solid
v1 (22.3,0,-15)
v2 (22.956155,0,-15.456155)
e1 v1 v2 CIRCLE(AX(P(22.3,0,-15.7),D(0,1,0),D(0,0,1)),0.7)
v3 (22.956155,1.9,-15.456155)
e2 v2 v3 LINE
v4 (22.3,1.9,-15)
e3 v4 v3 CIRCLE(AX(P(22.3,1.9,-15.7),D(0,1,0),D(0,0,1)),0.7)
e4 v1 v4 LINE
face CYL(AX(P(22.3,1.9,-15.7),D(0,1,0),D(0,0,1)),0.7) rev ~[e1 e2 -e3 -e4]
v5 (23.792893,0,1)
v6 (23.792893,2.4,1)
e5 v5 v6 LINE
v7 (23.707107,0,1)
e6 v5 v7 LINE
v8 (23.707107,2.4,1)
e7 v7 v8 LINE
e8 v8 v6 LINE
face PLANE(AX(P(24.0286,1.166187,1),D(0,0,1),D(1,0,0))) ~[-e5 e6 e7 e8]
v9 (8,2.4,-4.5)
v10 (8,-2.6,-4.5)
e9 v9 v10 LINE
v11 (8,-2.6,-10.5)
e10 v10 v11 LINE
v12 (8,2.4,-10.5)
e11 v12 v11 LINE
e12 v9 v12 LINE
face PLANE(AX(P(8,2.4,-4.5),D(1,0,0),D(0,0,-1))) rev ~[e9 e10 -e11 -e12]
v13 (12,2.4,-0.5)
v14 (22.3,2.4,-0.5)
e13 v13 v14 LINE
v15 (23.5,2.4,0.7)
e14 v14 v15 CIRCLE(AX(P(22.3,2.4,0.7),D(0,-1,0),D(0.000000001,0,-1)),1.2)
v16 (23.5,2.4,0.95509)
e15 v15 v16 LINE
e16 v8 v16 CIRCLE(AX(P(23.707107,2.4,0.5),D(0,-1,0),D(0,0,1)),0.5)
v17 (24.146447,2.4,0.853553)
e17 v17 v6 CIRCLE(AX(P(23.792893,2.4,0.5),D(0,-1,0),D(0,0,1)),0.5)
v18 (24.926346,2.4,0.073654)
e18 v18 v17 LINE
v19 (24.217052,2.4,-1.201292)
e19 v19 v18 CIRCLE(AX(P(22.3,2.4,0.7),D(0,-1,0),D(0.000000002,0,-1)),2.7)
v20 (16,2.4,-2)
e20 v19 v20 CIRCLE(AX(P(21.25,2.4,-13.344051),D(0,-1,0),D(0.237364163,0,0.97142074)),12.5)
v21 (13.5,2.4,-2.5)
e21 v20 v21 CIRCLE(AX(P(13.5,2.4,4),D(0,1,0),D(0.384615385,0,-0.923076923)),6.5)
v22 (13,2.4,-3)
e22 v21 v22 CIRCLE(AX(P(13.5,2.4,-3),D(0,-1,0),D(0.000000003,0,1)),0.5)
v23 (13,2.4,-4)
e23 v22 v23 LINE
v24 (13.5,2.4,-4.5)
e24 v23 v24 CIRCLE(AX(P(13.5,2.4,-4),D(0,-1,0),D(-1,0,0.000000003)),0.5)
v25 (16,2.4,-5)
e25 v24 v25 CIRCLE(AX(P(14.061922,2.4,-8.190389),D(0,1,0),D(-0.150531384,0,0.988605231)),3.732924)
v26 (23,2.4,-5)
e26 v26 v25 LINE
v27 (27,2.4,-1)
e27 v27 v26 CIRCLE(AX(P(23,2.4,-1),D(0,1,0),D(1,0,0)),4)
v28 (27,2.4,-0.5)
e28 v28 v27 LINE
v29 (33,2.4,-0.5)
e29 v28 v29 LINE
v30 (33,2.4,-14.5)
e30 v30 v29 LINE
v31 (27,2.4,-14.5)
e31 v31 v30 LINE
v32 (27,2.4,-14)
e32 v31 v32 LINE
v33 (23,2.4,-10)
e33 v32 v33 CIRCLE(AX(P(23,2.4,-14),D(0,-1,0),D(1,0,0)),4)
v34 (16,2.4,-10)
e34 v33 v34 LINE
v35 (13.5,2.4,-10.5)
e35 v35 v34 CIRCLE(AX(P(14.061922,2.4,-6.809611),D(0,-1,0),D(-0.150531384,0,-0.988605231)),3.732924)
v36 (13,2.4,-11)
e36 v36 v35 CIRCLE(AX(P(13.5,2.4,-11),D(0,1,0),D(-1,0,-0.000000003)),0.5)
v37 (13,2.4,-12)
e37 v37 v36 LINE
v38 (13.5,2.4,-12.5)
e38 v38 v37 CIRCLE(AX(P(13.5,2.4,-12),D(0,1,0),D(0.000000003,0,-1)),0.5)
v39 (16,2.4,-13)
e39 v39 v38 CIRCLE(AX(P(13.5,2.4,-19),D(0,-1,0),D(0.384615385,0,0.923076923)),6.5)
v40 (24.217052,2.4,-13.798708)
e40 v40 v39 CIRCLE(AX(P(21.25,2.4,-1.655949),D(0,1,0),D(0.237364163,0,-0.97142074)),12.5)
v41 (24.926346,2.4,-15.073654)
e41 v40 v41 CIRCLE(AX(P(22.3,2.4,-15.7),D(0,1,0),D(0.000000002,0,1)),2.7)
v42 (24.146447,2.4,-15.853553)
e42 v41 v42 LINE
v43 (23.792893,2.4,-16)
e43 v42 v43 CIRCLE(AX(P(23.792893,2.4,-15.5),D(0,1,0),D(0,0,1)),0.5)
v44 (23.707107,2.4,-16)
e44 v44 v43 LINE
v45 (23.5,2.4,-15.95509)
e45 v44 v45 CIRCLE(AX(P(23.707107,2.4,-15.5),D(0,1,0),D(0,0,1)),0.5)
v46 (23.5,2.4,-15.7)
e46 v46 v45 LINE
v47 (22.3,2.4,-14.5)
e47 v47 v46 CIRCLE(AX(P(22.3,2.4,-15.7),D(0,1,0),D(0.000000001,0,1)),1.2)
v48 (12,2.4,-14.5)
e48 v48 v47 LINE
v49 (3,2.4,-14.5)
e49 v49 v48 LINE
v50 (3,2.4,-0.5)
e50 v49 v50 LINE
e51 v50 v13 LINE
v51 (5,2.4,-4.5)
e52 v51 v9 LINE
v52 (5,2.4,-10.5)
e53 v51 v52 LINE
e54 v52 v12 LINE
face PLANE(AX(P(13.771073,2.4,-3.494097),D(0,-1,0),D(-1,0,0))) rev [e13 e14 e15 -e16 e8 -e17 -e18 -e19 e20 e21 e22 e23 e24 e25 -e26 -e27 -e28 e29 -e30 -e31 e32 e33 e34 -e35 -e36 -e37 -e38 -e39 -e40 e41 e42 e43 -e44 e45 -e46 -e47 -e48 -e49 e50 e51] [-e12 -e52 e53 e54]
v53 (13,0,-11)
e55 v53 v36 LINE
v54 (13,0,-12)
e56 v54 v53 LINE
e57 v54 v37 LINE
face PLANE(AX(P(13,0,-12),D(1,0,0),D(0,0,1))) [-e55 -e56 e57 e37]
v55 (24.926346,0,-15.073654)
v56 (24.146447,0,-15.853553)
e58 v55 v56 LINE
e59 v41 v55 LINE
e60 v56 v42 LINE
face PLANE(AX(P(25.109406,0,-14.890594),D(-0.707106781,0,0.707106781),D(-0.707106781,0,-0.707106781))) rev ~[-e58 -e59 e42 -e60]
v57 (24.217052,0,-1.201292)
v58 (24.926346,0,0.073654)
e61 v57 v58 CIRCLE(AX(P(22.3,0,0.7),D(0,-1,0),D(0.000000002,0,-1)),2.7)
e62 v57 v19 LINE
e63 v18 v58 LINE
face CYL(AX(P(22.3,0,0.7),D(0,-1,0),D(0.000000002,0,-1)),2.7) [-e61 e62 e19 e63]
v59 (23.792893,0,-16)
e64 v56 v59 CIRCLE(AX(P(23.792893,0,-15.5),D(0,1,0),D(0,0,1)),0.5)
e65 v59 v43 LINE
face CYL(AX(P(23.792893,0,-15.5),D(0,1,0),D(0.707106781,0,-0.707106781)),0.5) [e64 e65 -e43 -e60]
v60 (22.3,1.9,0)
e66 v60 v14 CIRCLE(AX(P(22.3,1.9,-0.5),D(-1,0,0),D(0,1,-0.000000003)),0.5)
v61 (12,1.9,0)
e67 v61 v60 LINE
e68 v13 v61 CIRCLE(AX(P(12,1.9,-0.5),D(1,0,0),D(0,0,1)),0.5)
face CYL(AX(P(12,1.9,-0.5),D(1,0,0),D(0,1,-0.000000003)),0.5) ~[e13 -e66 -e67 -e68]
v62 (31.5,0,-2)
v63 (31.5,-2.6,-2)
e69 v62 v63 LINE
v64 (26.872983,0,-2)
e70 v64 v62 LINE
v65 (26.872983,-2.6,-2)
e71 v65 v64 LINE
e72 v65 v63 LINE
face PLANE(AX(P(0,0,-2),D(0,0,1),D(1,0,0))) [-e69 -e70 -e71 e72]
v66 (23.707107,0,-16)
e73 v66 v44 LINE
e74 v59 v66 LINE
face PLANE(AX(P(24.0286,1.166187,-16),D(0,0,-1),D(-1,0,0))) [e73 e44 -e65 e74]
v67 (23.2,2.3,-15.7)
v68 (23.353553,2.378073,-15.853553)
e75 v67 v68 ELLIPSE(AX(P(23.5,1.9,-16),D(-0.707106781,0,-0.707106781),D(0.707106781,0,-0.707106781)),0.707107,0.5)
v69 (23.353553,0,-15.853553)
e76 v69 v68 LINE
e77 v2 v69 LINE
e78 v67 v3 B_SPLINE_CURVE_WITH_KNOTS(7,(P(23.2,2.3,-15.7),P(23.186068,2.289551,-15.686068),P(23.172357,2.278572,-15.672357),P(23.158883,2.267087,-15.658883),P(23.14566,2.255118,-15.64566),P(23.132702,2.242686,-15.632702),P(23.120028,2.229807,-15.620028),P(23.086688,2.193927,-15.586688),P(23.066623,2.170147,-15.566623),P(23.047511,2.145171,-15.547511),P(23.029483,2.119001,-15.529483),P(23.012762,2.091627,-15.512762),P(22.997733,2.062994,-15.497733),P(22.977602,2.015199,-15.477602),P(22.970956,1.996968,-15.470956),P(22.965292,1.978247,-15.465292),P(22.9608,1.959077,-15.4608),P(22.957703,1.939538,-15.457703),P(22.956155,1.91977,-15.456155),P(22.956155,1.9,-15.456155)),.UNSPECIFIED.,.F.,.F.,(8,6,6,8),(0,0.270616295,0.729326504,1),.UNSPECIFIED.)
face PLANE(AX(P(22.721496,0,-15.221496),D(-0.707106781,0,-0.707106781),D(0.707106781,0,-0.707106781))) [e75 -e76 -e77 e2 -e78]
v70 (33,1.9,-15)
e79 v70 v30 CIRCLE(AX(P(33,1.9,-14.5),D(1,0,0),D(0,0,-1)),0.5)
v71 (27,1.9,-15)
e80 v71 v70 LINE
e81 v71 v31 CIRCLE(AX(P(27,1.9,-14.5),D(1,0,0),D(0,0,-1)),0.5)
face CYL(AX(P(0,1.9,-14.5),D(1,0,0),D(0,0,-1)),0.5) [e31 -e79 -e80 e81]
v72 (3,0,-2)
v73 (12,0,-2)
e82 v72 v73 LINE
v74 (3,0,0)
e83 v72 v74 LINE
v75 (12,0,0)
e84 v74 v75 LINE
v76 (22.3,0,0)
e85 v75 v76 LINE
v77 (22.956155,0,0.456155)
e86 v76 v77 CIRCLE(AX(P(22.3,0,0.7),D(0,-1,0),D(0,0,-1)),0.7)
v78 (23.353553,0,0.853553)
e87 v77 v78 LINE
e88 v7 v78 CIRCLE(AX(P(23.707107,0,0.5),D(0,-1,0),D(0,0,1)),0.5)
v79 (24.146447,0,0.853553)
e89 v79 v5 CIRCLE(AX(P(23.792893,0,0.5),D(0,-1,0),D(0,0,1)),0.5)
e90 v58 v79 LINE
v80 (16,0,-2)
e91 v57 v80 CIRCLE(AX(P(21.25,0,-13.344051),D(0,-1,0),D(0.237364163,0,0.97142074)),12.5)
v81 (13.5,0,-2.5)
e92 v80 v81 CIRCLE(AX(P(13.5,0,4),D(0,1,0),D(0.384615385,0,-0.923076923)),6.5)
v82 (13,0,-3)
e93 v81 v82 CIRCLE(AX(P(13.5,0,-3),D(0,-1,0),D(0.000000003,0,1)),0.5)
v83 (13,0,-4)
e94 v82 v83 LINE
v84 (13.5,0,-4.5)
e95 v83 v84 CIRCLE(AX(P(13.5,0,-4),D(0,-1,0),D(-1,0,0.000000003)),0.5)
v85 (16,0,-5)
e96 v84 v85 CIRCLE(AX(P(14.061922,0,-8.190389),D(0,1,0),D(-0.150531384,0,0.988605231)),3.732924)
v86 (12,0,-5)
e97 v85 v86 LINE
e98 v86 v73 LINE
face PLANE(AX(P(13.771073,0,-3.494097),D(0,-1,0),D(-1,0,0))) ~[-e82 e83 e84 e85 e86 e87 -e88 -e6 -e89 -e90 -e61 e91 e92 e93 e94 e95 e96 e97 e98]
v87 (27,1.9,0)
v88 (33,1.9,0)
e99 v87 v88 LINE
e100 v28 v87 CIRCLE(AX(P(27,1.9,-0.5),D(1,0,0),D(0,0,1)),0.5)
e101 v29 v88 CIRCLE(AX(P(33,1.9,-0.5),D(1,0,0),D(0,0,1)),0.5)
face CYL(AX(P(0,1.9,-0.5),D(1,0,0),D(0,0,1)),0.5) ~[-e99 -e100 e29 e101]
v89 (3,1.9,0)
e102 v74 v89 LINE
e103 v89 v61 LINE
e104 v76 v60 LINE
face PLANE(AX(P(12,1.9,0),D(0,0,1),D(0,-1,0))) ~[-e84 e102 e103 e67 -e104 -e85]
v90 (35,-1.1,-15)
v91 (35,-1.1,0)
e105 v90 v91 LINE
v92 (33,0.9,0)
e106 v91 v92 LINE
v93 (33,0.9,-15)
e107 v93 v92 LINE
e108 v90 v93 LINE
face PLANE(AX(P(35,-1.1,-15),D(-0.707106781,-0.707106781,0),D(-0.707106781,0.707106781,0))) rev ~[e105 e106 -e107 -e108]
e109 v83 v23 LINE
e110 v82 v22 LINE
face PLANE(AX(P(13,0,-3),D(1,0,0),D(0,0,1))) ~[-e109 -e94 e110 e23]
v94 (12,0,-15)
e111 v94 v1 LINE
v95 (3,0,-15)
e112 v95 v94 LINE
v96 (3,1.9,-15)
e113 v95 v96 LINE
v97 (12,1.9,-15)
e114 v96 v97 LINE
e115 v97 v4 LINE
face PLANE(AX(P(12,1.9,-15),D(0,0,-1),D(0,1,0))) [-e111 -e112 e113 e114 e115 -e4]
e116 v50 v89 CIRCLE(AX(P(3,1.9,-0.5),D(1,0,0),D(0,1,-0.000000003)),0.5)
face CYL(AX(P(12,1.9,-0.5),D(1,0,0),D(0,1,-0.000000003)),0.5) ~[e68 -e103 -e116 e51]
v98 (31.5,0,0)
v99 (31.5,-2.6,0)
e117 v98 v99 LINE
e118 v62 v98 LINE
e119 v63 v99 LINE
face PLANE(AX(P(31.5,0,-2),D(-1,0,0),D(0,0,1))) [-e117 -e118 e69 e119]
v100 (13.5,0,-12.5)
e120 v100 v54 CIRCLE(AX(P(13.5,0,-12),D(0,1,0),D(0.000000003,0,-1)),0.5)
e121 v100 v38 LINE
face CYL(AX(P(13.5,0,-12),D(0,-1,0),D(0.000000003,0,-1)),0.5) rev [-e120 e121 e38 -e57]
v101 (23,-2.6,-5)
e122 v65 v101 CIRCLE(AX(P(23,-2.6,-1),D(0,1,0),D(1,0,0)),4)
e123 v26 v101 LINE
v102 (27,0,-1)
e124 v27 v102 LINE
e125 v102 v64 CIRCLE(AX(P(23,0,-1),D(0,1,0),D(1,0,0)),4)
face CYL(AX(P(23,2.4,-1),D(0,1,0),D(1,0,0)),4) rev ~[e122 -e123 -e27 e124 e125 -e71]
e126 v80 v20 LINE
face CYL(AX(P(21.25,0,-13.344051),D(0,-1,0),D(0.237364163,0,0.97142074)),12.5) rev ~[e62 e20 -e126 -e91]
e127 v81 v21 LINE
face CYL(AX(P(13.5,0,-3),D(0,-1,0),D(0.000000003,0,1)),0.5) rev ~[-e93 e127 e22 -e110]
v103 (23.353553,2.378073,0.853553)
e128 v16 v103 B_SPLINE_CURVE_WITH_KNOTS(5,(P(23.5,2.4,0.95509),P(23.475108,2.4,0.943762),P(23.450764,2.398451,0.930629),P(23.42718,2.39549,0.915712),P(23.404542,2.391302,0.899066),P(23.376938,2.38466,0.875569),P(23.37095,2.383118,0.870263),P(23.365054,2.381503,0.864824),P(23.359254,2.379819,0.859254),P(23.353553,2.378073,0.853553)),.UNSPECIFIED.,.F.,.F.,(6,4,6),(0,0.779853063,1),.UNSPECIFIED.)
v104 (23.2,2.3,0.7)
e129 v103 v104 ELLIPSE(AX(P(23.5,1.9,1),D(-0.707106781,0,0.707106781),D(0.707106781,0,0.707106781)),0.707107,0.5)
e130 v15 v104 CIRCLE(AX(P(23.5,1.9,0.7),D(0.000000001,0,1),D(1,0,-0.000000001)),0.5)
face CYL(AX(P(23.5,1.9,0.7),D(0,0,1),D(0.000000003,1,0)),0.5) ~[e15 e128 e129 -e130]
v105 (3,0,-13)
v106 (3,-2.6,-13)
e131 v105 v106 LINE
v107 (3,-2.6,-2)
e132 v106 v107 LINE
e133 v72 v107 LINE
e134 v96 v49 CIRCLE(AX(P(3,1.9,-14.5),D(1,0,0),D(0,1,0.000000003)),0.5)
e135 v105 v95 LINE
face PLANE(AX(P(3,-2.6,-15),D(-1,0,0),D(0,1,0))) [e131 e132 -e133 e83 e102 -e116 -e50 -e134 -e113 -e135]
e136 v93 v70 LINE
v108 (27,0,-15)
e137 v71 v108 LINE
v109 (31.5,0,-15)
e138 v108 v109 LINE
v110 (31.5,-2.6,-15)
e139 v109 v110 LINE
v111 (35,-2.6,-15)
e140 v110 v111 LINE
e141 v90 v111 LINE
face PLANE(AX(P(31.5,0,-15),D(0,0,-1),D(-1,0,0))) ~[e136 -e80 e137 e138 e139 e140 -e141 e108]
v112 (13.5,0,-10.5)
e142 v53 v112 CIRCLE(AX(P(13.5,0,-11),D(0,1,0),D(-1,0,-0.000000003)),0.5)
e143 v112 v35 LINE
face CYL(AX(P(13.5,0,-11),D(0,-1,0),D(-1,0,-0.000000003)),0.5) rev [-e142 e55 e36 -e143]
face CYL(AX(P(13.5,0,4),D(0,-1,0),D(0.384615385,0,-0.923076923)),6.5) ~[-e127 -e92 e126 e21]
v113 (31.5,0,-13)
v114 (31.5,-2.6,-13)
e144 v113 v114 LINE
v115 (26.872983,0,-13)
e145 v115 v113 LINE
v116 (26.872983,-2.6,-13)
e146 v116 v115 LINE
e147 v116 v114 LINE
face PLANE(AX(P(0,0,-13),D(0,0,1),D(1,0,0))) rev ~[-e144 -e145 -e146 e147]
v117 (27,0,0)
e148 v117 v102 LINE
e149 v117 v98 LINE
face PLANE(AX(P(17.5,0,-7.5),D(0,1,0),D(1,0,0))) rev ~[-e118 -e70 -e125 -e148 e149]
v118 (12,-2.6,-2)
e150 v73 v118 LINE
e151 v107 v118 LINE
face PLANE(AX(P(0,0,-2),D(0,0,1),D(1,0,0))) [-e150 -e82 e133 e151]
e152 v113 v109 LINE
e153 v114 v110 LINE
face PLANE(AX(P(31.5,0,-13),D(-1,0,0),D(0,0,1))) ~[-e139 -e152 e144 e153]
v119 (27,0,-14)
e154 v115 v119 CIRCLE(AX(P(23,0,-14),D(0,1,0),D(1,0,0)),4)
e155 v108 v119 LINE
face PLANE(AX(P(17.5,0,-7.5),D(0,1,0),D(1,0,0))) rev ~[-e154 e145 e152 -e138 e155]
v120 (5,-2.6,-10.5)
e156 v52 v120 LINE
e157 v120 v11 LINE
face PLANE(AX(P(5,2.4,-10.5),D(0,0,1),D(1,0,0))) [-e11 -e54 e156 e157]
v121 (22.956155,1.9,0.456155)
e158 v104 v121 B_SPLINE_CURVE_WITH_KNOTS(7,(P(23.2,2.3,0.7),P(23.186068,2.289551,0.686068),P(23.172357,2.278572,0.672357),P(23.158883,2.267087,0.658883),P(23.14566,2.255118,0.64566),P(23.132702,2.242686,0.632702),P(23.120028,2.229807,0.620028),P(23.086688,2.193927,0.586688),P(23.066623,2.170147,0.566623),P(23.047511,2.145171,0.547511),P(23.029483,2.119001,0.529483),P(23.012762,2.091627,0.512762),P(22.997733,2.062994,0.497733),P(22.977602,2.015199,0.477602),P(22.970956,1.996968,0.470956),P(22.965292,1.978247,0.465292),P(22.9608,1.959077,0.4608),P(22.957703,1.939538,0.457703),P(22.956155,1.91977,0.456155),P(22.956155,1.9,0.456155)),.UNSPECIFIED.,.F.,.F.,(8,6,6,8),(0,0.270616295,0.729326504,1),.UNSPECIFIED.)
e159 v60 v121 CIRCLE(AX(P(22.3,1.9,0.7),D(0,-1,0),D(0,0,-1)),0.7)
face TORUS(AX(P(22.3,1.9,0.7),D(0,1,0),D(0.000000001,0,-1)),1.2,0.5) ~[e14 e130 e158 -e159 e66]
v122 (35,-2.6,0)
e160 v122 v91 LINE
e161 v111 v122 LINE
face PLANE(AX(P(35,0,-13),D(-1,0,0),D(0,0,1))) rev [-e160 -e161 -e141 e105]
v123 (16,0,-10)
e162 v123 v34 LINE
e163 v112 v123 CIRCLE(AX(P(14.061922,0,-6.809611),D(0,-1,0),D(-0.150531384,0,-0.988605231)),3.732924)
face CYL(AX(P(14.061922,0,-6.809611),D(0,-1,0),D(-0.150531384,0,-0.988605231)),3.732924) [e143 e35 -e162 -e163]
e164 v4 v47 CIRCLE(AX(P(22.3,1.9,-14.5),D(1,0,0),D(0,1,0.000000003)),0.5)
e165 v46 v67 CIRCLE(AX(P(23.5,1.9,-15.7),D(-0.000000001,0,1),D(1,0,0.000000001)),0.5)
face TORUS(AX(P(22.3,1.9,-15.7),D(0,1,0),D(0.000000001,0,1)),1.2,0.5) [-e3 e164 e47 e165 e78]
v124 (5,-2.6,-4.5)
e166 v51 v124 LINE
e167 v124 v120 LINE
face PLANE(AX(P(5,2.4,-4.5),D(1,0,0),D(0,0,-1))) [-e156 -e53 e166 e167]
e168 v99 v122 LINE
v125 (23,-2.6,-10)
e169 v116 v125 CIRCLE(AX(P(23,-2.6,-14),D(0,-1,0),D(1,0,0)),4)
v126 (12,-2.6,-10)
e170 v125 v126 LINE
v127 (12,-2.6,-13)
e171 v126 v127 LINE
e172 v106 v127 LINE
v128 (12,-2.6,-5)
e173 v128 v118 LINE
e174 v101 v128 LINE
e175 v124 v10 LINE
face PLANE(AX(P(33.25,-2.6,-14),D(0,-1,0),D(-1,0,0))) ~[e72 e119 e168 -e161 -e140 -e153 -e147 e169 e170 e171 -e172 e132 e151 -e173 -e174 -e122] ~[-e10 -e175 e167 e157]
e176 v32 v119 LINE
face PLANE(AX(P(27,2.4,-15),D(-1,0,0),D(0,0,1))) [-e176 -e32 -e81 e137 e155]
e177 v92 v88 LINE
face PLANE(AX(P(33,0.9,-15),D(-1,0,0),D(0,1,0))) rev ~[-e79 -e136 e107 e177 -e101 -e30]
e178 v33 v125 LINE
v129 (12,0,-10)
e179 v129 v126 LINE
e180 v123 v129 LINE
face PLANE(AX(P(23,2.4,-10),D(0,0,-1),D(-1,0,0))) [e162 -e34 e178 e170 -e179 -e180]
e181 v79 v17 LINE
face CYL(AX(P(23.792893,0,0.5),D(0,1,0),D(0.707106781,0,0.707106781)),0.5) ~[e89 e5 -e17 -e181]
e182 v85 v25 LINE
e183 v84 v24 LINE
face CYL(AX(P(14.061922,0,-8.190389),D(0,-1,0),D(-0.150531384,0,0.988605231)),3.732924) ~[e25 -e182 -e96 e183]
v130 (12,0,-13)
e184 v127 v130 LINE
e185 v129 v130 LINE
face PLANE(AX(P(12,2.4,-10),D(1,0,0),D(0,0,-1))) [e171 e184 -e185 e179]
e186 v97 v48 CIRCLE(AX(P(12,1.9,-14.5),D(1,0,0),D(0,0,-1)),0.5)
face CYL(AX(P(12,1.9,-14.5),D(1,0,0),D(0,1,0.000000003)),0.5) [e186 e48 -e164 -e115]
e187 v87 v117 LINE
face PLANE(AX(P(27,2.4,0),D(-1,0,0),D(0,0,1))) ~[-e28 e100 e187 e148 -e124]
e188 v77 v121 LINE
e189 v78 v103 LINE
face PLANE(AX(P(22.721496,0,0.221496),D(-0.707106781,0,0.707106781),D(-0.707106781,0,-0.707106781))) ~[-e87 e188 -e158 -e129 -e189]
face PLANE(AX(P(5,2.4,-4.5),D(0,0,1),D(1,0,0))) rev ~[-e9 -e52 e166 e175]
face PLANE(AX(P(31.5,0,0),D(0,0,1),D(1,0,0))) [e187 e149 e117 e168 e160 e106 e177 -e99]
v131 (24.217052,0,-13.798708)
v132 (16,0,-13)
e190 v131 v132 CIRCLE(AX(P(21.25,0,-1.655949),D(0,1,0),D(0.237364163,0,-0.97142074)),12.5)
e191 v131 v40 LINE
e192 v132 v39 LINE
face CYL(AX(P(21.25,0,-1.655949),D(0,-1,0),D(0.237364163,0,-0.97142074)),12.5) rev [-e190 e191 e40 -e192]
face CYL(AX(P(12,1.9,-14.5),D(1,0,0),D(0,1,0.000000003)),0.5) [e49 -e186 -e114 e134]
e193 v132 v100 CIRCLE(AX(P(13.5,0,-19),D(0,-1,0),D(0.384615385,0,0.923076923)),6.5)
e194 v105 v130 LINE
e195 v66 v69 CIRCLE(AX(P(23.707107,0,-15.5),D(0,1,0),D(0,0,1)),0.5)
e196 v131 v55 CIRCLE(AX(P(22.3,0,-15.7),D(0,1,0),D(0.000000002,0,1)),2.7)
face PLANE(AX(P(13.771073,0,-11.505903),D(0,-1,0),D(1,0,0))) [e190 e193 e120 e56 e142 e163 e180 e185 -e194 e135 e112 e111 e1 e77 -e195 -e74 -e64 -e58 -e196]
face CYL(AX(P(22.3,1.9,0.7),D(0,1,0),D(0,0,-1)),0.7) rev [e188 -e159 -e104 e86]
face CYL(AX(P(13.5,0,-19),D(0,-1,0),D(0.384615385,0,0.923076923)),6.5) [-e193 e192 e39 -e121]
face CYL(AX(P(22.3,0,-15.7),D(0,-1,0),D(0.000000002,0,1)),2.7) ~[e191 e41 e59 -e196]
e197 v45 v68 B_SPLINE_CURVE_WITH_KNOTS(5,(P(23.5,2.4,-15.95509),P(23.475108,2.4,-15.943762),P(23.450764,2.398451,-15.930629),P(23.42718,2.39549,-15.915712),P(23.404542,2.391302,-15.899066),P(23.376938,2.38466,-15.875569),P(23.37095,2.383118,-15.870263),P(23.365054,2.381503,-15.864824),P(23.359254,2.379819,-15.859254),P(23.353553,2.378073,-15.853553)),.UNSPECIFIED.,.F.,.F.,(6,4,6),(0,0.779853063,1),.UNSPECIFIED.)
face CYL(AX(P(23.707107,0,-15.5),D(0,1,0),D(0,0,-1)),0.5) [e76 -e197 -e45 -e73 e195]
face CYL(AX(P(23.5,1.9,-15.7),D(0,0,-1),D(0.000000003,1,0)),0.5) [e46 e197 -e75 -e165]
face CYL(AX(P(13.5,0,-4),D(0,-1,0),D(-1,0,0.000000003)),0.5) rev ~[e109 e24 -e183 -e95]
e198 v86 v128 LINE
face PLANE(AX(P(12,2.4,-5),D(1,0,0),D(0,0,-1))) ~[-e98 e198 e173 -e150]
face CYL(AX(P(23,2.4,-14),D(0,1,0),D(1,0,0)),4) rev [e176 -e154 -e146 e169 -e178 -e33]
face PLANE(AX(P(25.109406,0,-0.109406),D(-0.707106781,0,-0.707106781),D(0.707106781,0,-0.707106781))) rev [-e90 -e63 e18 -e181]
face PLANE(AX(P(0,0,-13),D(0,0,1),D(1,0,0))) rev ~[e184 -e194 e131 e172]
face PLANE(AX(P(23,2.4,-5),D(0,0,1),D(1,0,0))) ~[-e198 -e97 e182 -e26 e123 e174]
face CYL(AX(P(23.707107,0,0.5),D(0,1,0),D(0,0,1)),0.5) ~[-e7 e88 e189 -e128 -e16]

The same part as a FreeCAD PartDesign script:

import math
import FreeCAD as App
import Part
import Sketcher
from FreeCAD import Vector
Q = App.Units.Quantity


def edges_at(feature, points):
    """Names of the edges that pass closest to the given points."""
    edges = feature.Shape.Edges
    near = lambda p: min(range(len(edges)), key=lambda i: edges[i].distToShape(Part.Vertex(*p))[0])
    return sorted({f"Edge{near(p) + 1}" for p in points})

doc = App.newDocument("Part")
params = doc.addObject("Spreadsheet::Sheet", "Params")
for row, (alias, value) in enumerate([
    ("sketch1_width", "35 mm"),
    ("sketch1_height", "15 mm"),
    ("pad1_length", "2.4 mm"),
    ("fillet_radius", "0.5 mm"),
    ("sketch2_width", "35 mm"),
    ("sketch2_height", "11 mm"),
    ("pad2_length", "2.6 mm"),
    ("sketch3_height", "2 mm"),
    ("sketch3_width", "3.5 mm"),
    ("pad3_length", "2.6 mm"),
    ("sketch4_width", "2 mm"),
    ("sketch4_height", "1.5 mm"),
    ("pocket1_length", "15 mm"),
    ("sketch5_radius", "4 mm"),
    ("sketch5_width", "15 mm"),
    ("sketch5_height", "5 mm"),
    ("pocket2_length", "5 mm"),
    ("sketch6_radius", "0.5 mm"),
    ("sketch6_width", "2 mm"),
    ("sketch6_height", "2.4 mm"),
    ("sketch7_radius", "1.2 mm"),
    ("sketch7_width", "10.3 mm"),
    ("sketch7_height", "0.3 mm"),
    ("pocket3_length", "2.4 mm"),
    ("sketch9_radius", "6.5 mm"),
    ("sketch9_radius2", "0.5 mm"),
    ("sketch9_width", "4 mm"),
    ("sketch9_height", "3 mm"),
    ("sketch9_height2", "1 mm"),
    ("pad4_length", "2.4 mm"),
    ("sketch10_radius", "12.5 mm"),
    ("sketch10_radius2", "2.7 mm"),
    ("sketch10_width", "6.3 mm"),
    ("pocket4_length", "2.4 mm"),
    ("fillet2_radius", "0.5 mm"),
    ("fillet3_radius", "0.5 mm"),
    ("sketch11_width", "3 mm"),
    ("sketch11_height", "5 mm"),
    ("pocket5_length", "15 mm"),
    ("sketch12_width", "3 mm"),
    ("sketch12_height", "6 mm"),
    ("pocket6_length", "5 mm"),
], start=1):
    params.set(f"A{row}", alias)
    params.set(f"B{row}", "=" + value)
    params.setAlias(f"B{row}", alias)

body = doc.addObject("PartDesign::Body", "Body")

# Sketch on XZ plane
sketch1 = body.newObject("Sketcher::SketchObject", "Sketch")
sketch1.AttachmentSupport = (doc.getObject("XZ_Plane"), [""])
sketch1.MapMode = "FlatFace"
sketch1.addGeometry(Part.LineSegment(Vector(0, -15, 0), Vector(0, 0, 0)), False)
sketch1.addGeometry(Part.LineSegment(Vector(0, 0, 0), Vector(35, 0, 0)), False)
sketch1.addGeometry(Part.LineSegment(Vector(35, 0, 0), Vector(35, -15, 0)), False)
sketch1.addGeometry(Part.LineSegment(Vector(35, -15, 0), Vector(0, -15, 0)), False)
sketch1.addConstraint(Sketcher.Constraint("Coincident", 0, 2, 1, 1))
sketch1.addConstraint(Sketcher.Constraint("Coincident", 1, 2, 2, 1))
sketch1.addConstraint(Sketcher.Constraint("Coincident", 2, 2, 3, 1))
sketch1.addConstraint(Sketcher.Constraint("Coincident", 3, 2, 0, 1))
sketch1.addConstraint(Sketcher.Constraint("Vertical", 0))
sketch1.addConstraint(Sketcher.Constraint("Horizontal", 1))
sketch1.addConstraint(Sketcher.Constraint("Vertical", 2))
sketch1.addConstraint(Sketcher.Constraint("Horizontal", 3))
sketch1.addConstraint(Sketcher.Constraint("Coincident", 0, 2, -1, 1))
sketch1.addConstraint(Sketcher.Constraint("DistanceX", 1, 1, 1, 2, Q("35 mm")))
sketch1.addConstraint(Sketcher.Constraint("DistanceY", 0, 1, 0, 2, Q("15 mm")))
sketch1.setExpression("Constraints[9]", "Params.sketch1_width")
sketch1.setExpression("Constraints[10]", "Params.sketch1_height")
pad1 = body.newObject("PartDesign::Pad", "Pad")
pad1.Profile = sketch1
pad1.setExpression("Length", "Params.pad1_length")
pad1.Reversed = True
doc.recompute()

fillet = body.newObject("PartDesign::Fillet", "Fillet")
fillet.Base = (pad1, edges_at(pad1, [(17.5, 2.4, -15), (17.5, 2.4, 0)]))
fillet.setExpression("Radius", "Params.fillet_radius")

# Sketch on XZ plane
sketch2 = body.newObject("Sketcher::SketchObject", "Sketch001")
sketch2.AttachmentSupport = (doc.getObject("XZ_Plane"), [""])
sketch2.MapMode = "FlatFace"
sketch2.addGeometry(Part.LineSegment(Vector(0, -2, 0), Vector(0, -13, 0)), False)
sketch2.addGeometry(Part.LineSegment(Vector(0, -13, 0), Vector(35, -13, 0)), False)
sketch2.addGeometry(Part.LineSegment(Vector(35, -13, 0), Vector(35, -2, 0)), False)
sketch2.addGeometry(Part.LineSegment(Vector(35, -2, 0), Vector(0, -2, 0)), False)
sketch2.addConstraint(Sketcher.Constraint("Coincident", 0, 2, 1, 1))
sketch2.addConstraint(Sketcher.Constraint("Coincident", 1, 2, 2, 1))
sketch2.addConstraint(Sketcher.Constraint("Coincident", 2, 2, 3, 1))
sketch2.addConstraint(Sketcher.Constraint("Coincident", 3, 2, 0, 1))
sketch2.addConstraint(Sketcher.Constraint("Vertical", 0))
sketch2.addConstraint(Sketcher.Constraint("Horizontal", 1))
sketch2.addConstraint(Sketcher.Constraint("Vertical", 2))
sketch2.addConstraint(Sketcher.Constraint("Horizontal", 3))
sketch2.addConstraint(Sketcher.Constraint("PointOnObject", 0, 2, -2))
sketch2.addConstraint(Sketcher.Constraint("DistanceX", 1, 1, 1, 2, Q("35 mm")))
sketch2.addConstraint(Sketcher.Constraint("DistanceY", 0, 2, 0, 1, Q("11 mm")))
sketch2.addConstraint(Sketcher.Constraint("DistanceY", 0, 2, -1, 1, Q("13 mm")))
sketch2.setExpression("Constraints[9]", "Params.sketch2_width")
sketch2.setExpression("Constraints[10]", "Params.sketch2_height")
pad2 = body.newObject("PartDesign::Pad", "Pad001")
pad2.Profile = sketch2
pad2.setExpression("Length", "Params.pad2_length")

# Sketch on XZ plane
sketch3 = body.newObject("Sketcher::SketchObject", "Sketch002")
sketch3.AttachmentSupport = (doc.getObject("XZ_Plane"), [""])
sketch3.MapMode = "FlatFace"
sketch3.addGeometry(Part.LineSegment(Vector(31.5, 0, 0), Vector(31.5, -2, 0)), False)
sketch3.addGeometry(Part.LineSegment(Vector(31.5, -2, 0), Vector(35, -2, 0)), False)
sketch3.addGeometry(Part.LineSegment(Vector(35, -2, 0), Vector(35, 0, 0)), False)
sketch3.addGeometry(Part.LineSegment(Vector(35, 0, 0), Vector(31.5, 0, 0)), False)
sketch3.addConstraint(Sketcher.Constraint("Coincident", 0, 2, 1, 1))
sketch3.addConstraint(Sketcher.Constraint("Coincident", 1, 2, 2, 1))
sketch3.addConstraint(Sketcher.Constraint("Coincident", 2, 2, 3, 1))
sketch3.addConstraint(Sketcher.Constraint("Coincident", 3, 2, 0, 1))
sketch3.addConstraint(Sketcher.Constraint("Vertical", 0))
sketch3.addConstraint(Sketcher.Constraint("Horizontal", 1))
sketch3.addConstraint(Sketcher.Constraint("Vertical", 2))
sketch3.addConstraint(Sketcher.Constraint("Horizontal", 3))
sketch3.addConstraint(Sketcher.Constraint("PointOnObject", 2, 2, -1))
sketch3.addConstraint(Sketcher.Constraint("DistanceY", 0, 2, 0, 1, Q("2 mm")))
sketch3.addConstraint(Sketcher.Constraint("DistanceX", 1, 1, 1, 2, Q("3.5 mm")))
sketch3.addConstraint(Sketcher.Constraint("DistanceX", -1, 1, 1, 2, Q("35 mm")))
sketch3.setExpression("Constraints[9]", "Params.sketch3_height")
sketch3.setExpression("Constraints[10]", "Params.sketch3_width")
pad3 = body.newObject("PartDesign::Pad", "Pad002")
pad3.Profile = sketch3
pad3.setExpression("Length", "Params.pad3_length")
doc.recompute()

datumplane = body.newObject("PartDesign::Plane", "DatumPlane")
datumplane.AttachmentSupport = (doc.getObject("XY_Plane"), [""])
datumplane.MapMode = "FlatFace"
datumplane.AttachmentOffset = App.Placement(Vector(0, 0, -7.5), App.Rotation())
mirrored = body.newObject("PartDesign::Mirrored", "Mirrored")
mirrored.Originals = [pad3]
mirrored.MirrorPlane = (datumplane, [""])
body.Tip = mirrored

# Sketch on XY plane
sketch4 = body.newObject("Sketcher::SketchObject", "Sketch003")
sketch4.AttachmentSupport = (doc.getObject("XY_Plane"), [""])
sketch4.MapMode = "FlatFace"
sketch4.AttachmentOffset = App.Placement(Vector(0, 0, -15), App.Rotation())
sketch4.addGeometry(Part.LineSegment(Vector(35, -1.1, 0), Vector(33, 0.9, 0)), False)
sketch4.addGeometry(Part.LineSegment(Vector(33, 0.9, 0), Vector(33, 2.4, 0)), False)
sketch4.addGeometry(Part.LineSegment(Vector(33, 2.4, 0), Vector(35, 2.4, 0)), False)
sketch4.addGeometry(Part.LineSegment(Vector(35, 2.4, 0), Vector(35, -1.1, 0)), False)
sketch4.addConstraint(Sketcher.Constraint("Coincident", 0, 2, 1, 1))
sketch4.addConstraint(Sketcher.Constraint("Coincident", 1, 2, 2, 1))
sketch4.addConstraint(Sketcher.Constraint("Coincident", 2, 2, 3, 1))
sketch4.addConstraint(Sketcher.Constraint("Coincident", 3, 2, 0, 1))
sketch4.addConstraint(Sketcher.Constraint("Vertical", 1))
sketch4.addConstraint(Sketcher.Constraint("Horizontal", 2))
sketch4.addConstraint(Sketcher.Constraint("Vertical", 3))
sketch4.addConstraint(Sketcher.Constraint("DistanceX", 2, 1, 2, 2, Q("2 mm")))
sketch4.addConstraint(Sketcher.Constraint("Angle", 0, Q("135 deg")))
sketch4.addConstraint(Sketcher.Constraint("DistanceY", 1, 1, 1, 2, Q("1.5 mm")))
sketch4.addConstraint(Sketcher.Constraint("DistanceX", -1, 1, 0, 2, Q("33 mm")))
sketch4.addConstraint(Sketcher.Constraint("DistanceY", -1, 1, 0, 2, Q("0.9 mm")))
sketch4.setExpression("Constraints[7]", "Params.sketch4_width")
sketch4.setExpression("Constraints[9]", "Params.sketch4_height")
pocket1 = body.newObject("PartDesign::Pocket", "Pocket")
pocket1.Profile = sketch4
pocket1.setExpression("Length", "Params.pocket1_length")
pocket1.Reversed = True

# Sketch on XZ plane
sketch5 = body.newObject("Sketcher::SketchObject", "Sketch004")
sketch5.AttachmentSupport = (doc.getObject("XZ_Plane"), [""])
sketch5.MapMode = "FlatFace"
sketch5.AttachmentOffset = App.Placement(Vector(0, 0, -2.4), App.Rotation())
sketch5.addGeometry(Part.LineSegment(Vector(27, -15, 0), Vector(12, -15, 0)), False)
sketch5.addGeometry(Part.LineSegment(Vector(12, -15, 0), Vector(12, -10, 0)), False)
sketch5.addGeometry(Part.LineSegment(Vector(12, -10, 0), Vector(23, -10, 0)), False)
sketch5.addGeometry(Part.ArcOfCircle(Part.Circle(Vector(23, -14, 0), Vector(0, 0, 1), 4), math.radians(0), math.radians(90)), False)
sketch5.addGeometry(Part.LineSegment(Vector(27, -14, 0), Vector(27, -15, 0)), False)
sketch5.addConstraint(Sketcher.Constraint("Coincident", 0, 2, 1, 1))
sketch5.addConstraint(Sketcher.Constraint("Coincident", 1, 2, 2, 1))
sketch5.addConstraint(Sketcher.Constraint("Tangent", 2, 2, 3, 2))
sketch5.addConstraint(Sketcher.Constraint("Tangent", 3, 1, 4, 1))
sketch5.addConstraint(Sketcher.Constraint("Coincident", 4, 2, 0, 1))
sketch5.addConstraint(Sketcher.Constraint("Horizontal", 0))
sketch5.addConstraint(Sketcher.Constraint("Vertical", 1))
sketch5.addConstraint(Sketcher.Constraint("Horizontal", 2))
sketch5.addConstraint(Sketcher.Constraint("Vertical", 4))
sketch5.addConstraint(Sketcher.Constraint("Radius", 3, Q("4 mm")))
sketch5.addConstraint(Sketcher.Constraint("DistanceX", 0, 2, 0, 1, Q("15 mm")))
sketch5.addConstraint(Sketcher.Constraint("DistanceY", 1, 1, 1, 2, Q("5 mm")))
sketch5.addConstraint(Sketcher.Constraint("DistanceX", -1, 1, 3, 3, Q("23 mm")))
sketch5.addConstraint(Sketcher.Constraint("DistanceY", 3, 3, -1, 1, Q("14 mm")))
sketch5.setExpression("Constraints[9]", "Params.sketch5_radius")
sketch5.setExpression("Constraints[10]", "Params.sketch5_width")
sketch5.setExpression("Constraints[11]", "Params.sketch5_height")
pocket2 = body.newObject("PartDesign::Pocket", "Pocket001")
pocket2.Profile = sketch5
pocket2.setExpression("Length", "Params.pocket2_length")
pocket2.Reversed = True

# Sketch on XY plane
sketch6 = body.newObject("Sketcher::SketchObject", "Sketch005")
sketch6.AttachmentSupport = (doc.getObject("XY_Plane"), [""])
sketch6.MapMode = "FlatFace"
sketch6.AttachmentOffset = App.Placement(Vector(0, 0, -16), App.Rotation())
sketch6.addGeometry(Part.LineSegment(Vector(23.5, 2.4, 0), Vector(25, 2.4, 0)), False)
sketch6.addGeometry(Part.LineSegment(Vector(25, 2.4, 0), Vector(25, 0, 0)), False)
sketch6.addGeometry(Part.LineSegment(Vector(25, 0, 0), Vector(23, 0, 0)), False)
sketch6.addGeometry(Part.LineSegment(Vector(23, 0, 0), Vector(23, 1.9, 0)), False)
sketch6.addGeometry(Part.ArcOfCircle(Part.Circle(Vector(23.5, 1.9, 0), Vector(0, 0, 1), 0.5), math.radians(90), math.radians(180)), False)
sketch6.addConstraint(Sketcher.Constraint("Coincident", 0, 2, 1, 1))
sketch6.addConstraint(Sketcher.Constraint("Coincident", 1, 2, 2, 1))
sketch6.addConstraint(Sketcher.Constraint("Coincident", 2, 2, 3, 1))
sketch6.addConstraint(Sketcher.Constraint("Tangent", 3, 2, 4, 2))
sketch6.addConstraint(Sketcher.Constraint("Tangent", 4, 1, 0, 1))
sketch6.addConstraint(Sketcher.Constraint("Horizontal", 0))
sketch6.addConstraint(Sketcher.Constraint("Vertical", 1))
sketch6.addConstraint(Sketcher.Constraint("Horizontal", 2))
sketch6.addConstraint(Sketcher.Constraint("Vertical", 3))
sketch6.addConstraint(Sketcher.Constraint("PointOnObject", 1, 2, -1))
sketch6.addConstraint(Sketcher.Constraint("Radius", 4, Q("0.5 mm")))
sketch6.addConstraint(Sketcher.Constraint("DistanceX", 2, 2, 2, 1, Q("2 mm")))
sketch6.addConstraint(Sketcher.Constraint("DistanceY", 1, 2, 1, 1, Q("2.4 mm")))
sketch6.addConstraint(Sketcher.Constraint("DistanceX", -1, 1, 0, 2, Q("25 mm")))
sketch6.setExpression("Constraints[10]", "Params.sketch6_radius")
sketch6.setExpression("Constraints[11]", "Params.sketch6_width")
sketch6.setExpression("Constraints[12]", "Params.sketch6_height")

# Sketch on XZ plane
sketch7 = body.newObject("Sketcher::SketchObject", "Sketch006")
sketch7.AttachmentSupport = (doc.getObject("XZ_Plane"), [""])
sketch7.MapMode = "FlatFace"
sketch7.AttachmentOffset = App.Placement(Vector(0, 0, -2.4), App.Rotation())
sketch7.addGeometry(Part.LineSegment(Vector(12, -14.5, 0), Vector(22.3, -14.5, 0)), False)
sketch7.addGeometry(Part.ArcOfCircle(Part.Circle(Vector(22.3, -15.7, 0), Vector(0, 0, 1), 1.2), math.radians(0), math.radians(90)), False)
sketch7.addGeometry(Part.LineSegment(Vector(23.5, -15.7, 0), Vector(23.5, -16, 0)), False)
sketch7.addConstraint(Sketcher.Constraint("Tangent", 0, 2, 1, 2))
sketch7.addConstraint(Sketcher.Constraint("Tangent", 1, 1, 2, 1))
sketch7.addConstraint(Sketcher.Constraint("Horizontal", 0))
sketch7.addConstraint(Sketcher.Constraint("Vertical", 2))
sketch7.addConstraint(Sketcher.Constraint("Radius", 1, Q("1.2 mm")))
sketch7.addConstraint(Sketcher.Constraint("DistanceX", 0, 1, 0, 2, Q("10.3 mm")))
sketch7.addConstraint(Sketcher.Constraint("DistanceY", 2, 2, 2, 1, Q("0.3 mm")))
sketch7.addConstraint(Sketcher.Constraint("DistanceX", -1, 1, 0, 1, Q("12 mm")))
sketch7.addConstraint(Sketcher.Constraint("DistanceY", 2, 2, -1, 1, Q("16 mm")))
sketch7.setExpression("Constraints[4]", "Params.sketch7_radius")
sketch7.setExpression("Constraints[5]", "Params.sketch7_width")
sketch7.setExpression("Constraints[6]", "Params.sketch7_height")
doc.recompute()

additivepipe = body.newObject("PartDesign::AdditivePipe", "AdditivePipe")
additivepipe.Profile = sketch6
additivepipe.Spine = (sketch7, ["Edge1", "Edge2", "Edge3"])

# Sketch on XZ plane
sketch8 = body.newObject("Sketcher::SketchObject", "Sketch007")
sketch8.AttachmentSupport = (doc.getObject("XZ_Plane"), [""])
sketch8.MapMode = "FlatFace"
sketch8.addGeometry(Part.LineSegment(Vector(22.7, -15.2, 0), Vector(22.7, -16, 0)), False)
sketch8.addGeometry(Part.LineSegment(Vector(22.7, -16, 0), Vector(23.5, -16, 0)), False)
sketch8.addGeometry(Part.LineSegment(Vector(23.5, -16, 0), Vector(22.7, -15.2, 0)), False)
sketch8.addGeometry(Part.LineSegment(Vector(25.1, -16, 0), Vector(25.1, -14.9, 0)), False)
sketch8.addGeometry(Part.LineSegment(Vector(25.1, -14.9, 0), Vector(24, -16, 0)), False)
sketch8.addGeometry(Part.LineSegment(Vector(24, -16, 0), Vector(25.1, -16, 0)), False)
sketch8.addConstraint(Sketcher.Constraint("Coincident", 0, 2, 1, 1))
sketch8.addConstraint(Sketcher.Constraint("Coincident", 1, 2, 2, 1))
sketch8.addConstraint(Sketcher.Constraint("Coincident", 2, 2, 0, 1))
sketch8.addConstraint(Sketcher.Constraint("Coincident", 3, 2, 4, 1))
sketch8.addConstraint(Sketcher.Constraint("Coincident", 4, 2, 5, 1))
sketch8.addConstraint(Sketcher.Constraint("Coincident", 5, 2, 3, 1))
sketch8.addConstraint(Sketcher.Constraint("Vertical", 0))
sketch8.addConstraint(Sketcher.Constraint("Horizontal", 1))
sketch8.addConstraint(Sketcher.Constraint("Vertical", 3))
sketch8.addConstraint(Sketcher.Constraint("Horizontal", 5))
sketch8.addConstraint(Sketcher.Constraint("Perpendicular", 2, 4))
sketch8.addConstraint(Sketcher.Constraint("Horizontal", 1, 2, 4, 2))
sketch8.addConstraint(Sketcher.Constraint("Equal", 1, 0))
sketch8.addConstraint(Sketcher.Constraint("DistanceY", 0, 2, -1, 1, Q("16 mm")))
sketch8.addConstraint(Sketcher.Constraint("DistanceX", -1, 1, 4, 2, Q("24 mm")))
sketch8.addConstraint(Sketcher.Constraint("DistanceX", -1, 1, 1, 2, Q("23.5 mm")))
sketch8.addConstraint(Sketcher.Constraint("DistanceY", 2, 2, 3, 2, Q("0.330902 mm")))
sketch8.addConstraint(Sketcher.Constraint("Distance", 2, Q("1.100971 mm")))
pocket3 = body.newObject("PartDesign::Pocket", "Pocket002")
pocket3.Profile = sketch8
pocket3.setExpression("Length", "Params.pocket3_length")

# Sketch on XZ plane
sketch9 = body.newObject("Sketcher::SketchObject", "Sketch008")
sketch9.AttachmentSupport = (doc.getObject("XZ_Plane"), [""])
sketch9.MapMode = "FlatFace"
sketch9.addGeometry(Part.LineSegment(Vector(12, -10, 0), Vector(12, -13, 0)), False)
sketch9.addGeometry(Part.LineSegment(Vector(12, -13, 0), Vector(16, -13, 0)), False)
sketch9.addGeometry(Part.ArcOfCircle(Part.Circle(Vector(13.5, -19, 0), Vector(0, 0, 1), 6.5), math.radians(67), math.radians(90)), False)
sketch9.addGeometry(Part.ArcOfCircle(Part.Circle(Vector(13.5, -12, 0), Vector(0, 0, 1), 0.5), math.radians(180), math.radians(270)), False)
sketch9.addGeometry(Part.LineSegment(Vector(13, -12, 0), Vector(13, -11, 0)), False)
sketch9.addGeometry(Part.ArcOfCircle(Part.Circle(Vector(13.5, -11, 0), Vector(0, 0, 1), 0.5), math.radians(90), math.radians(180)), False)
sketch9.addGeometry(Part.ArcOfCircle(Part.Circle(Vector(14.06, -6.81, 0), Vector(0, 0, 1), 3.73), math.radians(-99), math.radians(-59)), False)
sketch9.addGeometry(Part.LineSegment(Vector(16, -10, 0), Vector(12, -10, 0)), False)
sketch9.addConstraint(Sketcher.Constraint("Coincident", 0, 2, 1, 1))
sketch9.addConstraint(Sketcher.Constraint("Coincident", 1, 2, 2, 1))
sketch9.addConstraint(Sketcher.Constraint("Tangent", 2, 2, 3, 2))
sketch9.addConstraint(Sketcher.Constraint("Tangent", 3, 1, 4, 1))
sketch9.addConstraint(Sketcher.Constraint("Tangent", 4, 2, 5, 2))
sketch9.addConstraint(Sketcher.Constraint("Coincident", 5, 1, 6, 1))
sketch9.addConstraint(Sketcher.Constraint("Coincident", 6, 2, 7, 1))
sketch9.addConstraint(Sketcher.Constraint("Coincident", 7, 2, 0, 1))
sketch9.addConstraint(Sketcher.Constraint("Vertical", 0))
sketch9.addConstraint(Sketcher.Constraint("Horizontal", 1))
sketch9.addConstraint(Sketcher.Constraint("Vertical", 4))
sketch9.addConstraint(Sketcher.Constraint("Horizontal", 7))
sketch9.addConstraint(Sketcher.Constraint("Equal", 3, 5))
sketch9.addConstraint(Sketcher.Constraint("Vertical", 2, 3, 3, 3))
sketch9.addConstraint(Sketcher.Constraint("Vertical", 2, 2, 5, 1))
sketch9.addConstraint(Sketcher.Constraint("Vertical", 1, 2, 6, 2))
sketch9.addConstraint(Sketcher.Constraint("Radius", 2, Q("6.5 mm")))
sketch9.addConstraint(Sketcher.Constraint("Radius", 3, Q("0.5 mm")))
sketch9.addConstraint(Sketcher.Constraint("DistanceX", 1, 1, 1, 2, Q("4 mm")))
sketch9.addConstraint(Sketcher.Constraint("DistanceY", 0, 2, 0, 1, Q("3 mm")))
sketch9.addConstraint(Sketcher.Constraint("DistanceY", 4, 1, 4, 2, Q("1 mm")))
sketch9.addConstraint(Sketcher.Constraint("DistanceY", 2, 3, -1, 1, Q("19 mm")))
sketch9.addConstraint(Sketcher.Constraint("DistanceX", -1, 1, 0, 2, Q("12 mm")))
sketch9.addConstraint(Sketcher.Constraint("DistanceY", 0, 2, -1, 1, Q("13 mm")))
sketch9.addConstraint(Sketcher.Constraint("Radius", 6, Q("3.732924 mm")))
sketch9.setExpression("Constraints[16]", "Params.sketch9_radius")
sketch9.setExpression("Constraints[17]", "Params.sketch9_radius2")
sketch9.setExpression("Constraints[18]", "Params.sketch9_width")
sketch9.setExpression("Constraints[19]", "Params.sketch9_height")
sketch9.setExpression("Constraints[20]", "Params.sketch9_height2")
pad4 = body.newObject("PartDesign::Pad", "Pad003")
pad4.Profile = sketch9
pad4.setExpression("Length", "Params.pad4_length")
pad4.Reversed = True

# Sketch on XZ plane
sketch10 = body.newObject("Sketcher::SketchObject", "Sketch009")
sketch10.AttachmentSupport = (doc.getObject("XZ_Plane"), [""])
sketch10.MapMode = "FlatFace"
sketch10.addGeometry(Part.LineSegment(Vector(22.3, -13, 0), Vector(16, -13, 0)), False)
sketch10.addGeometry(Part.ArcOfCircle(Part.Circle(Vector(21.2, -1.7, 0), Vector(0, 0, 1), 12.5), math.radians(-115), math.radians(-76)), False)
sketch10.addGeometry(Part.ArcOfCircle(Part.Circle(Vector(22.3, -15.7, 0), Vector(0, 0, 1), 2.7), math.radians(45), math.radians(90)), False)
sketch10.addConstraint(Sketcher.Constraint("Coincident", 0, 2, 1, 1))
sketch10.addConstraint(Sketcher.Constraint("Coincident", 1, 2, 2, 1))
sketch10.addConstraint(Sketcher.Constraint("Tangent", 2, 2, 0, 1))
sketch10.addConstraint(Sketcher.Constraint("Horizontal", 0))
sketch10.addConstraint(Sketcher.Constraint("Radius", 1, Q("12.5 mm")))
sketch10.addConstraint(Sketcher.Constraint("Radius", 2, Q("2.7 mm")))
sketch10.addConstraint(Sketcher.Constraint("DistanceX", 0, 2, 0, 1, Q("6.3 mm")))
sketch10.addConstraint(Sketcher.Constraint("DistanceX", -1, 1, 0, 2, Q("16 mm")))
sketch10.addConstraint(Sketcher.Constraint("DistanceY", 0, 2, -1, 1, Q("13 mm")))
sketch10.addConstraint(Sketcher.Constraint("DistanceX", -1, 1, 1, 3, Q("21.25 mm")))
sketch10.setExpression("Constraints[4]", "Params.sketch10_radius")
sketch10.setExpression("Constraints[5]", "Params.sketch10_radius2")
sketch10.setExpression("Constraints[6]", "Params.sketch10_width")
pocket4 = body.newObject("PartDesign::Pocket", "Pocket003")
pocket4.Profile = sketch10
pocket4.setExpression("Length", "Params.pocket4_length")
doc.recompute()

fillet2 = body.newObject("PartDesign::Fillet", "Fillet001")
fillet2.Base = (pocket4, edges_at(pocket4, [(23.5, 1.2, -16), (24, 1.2, -16)]))
fillet2.setExpression("Radius", "Params.fillet2_radius")
doc.recompute()

datumplane2 = body.newObject("PartDesign::Plane", "DatumPlane001")
datumplane2.AttachmentSupport = (doc.getObject("XY_Plane"), [""])
datumplane2.MapMode = "FlatFace"
datumplane2.AttachmentOffset = App.Placement(Vector(0, 0, -7.5), App.Rotation())
mirrored2 = body.newObject("PartDesign::Mirrored", "Mirrored001")
mirrored2.Originals = [pocket2, additivepipe, pocket3, pad4, pocket4]
mirrored2.MirrorPlane = (datumplane2, [""])
body.Tip = mirrored2
doc.recompute()

fillet3 = body.newObject("PartDesign::Fillet", "Fillet002")
fillet3.Base = (mirrored2, edges_at(mirrored2, [(23.5, 1.2, 1), (24, 1.2, 1)]))
fillet3.setExpression("Radius", "Params.fillet3_radius")

# Sketch on XY plane
sketch11 = body.newObject("Sketcher::SketchObject", "Sketch010")
sketch11.AttachmentSupport = (doc.getObject("XY_Plane"), [""])
sketch11.MapMode = "FlatFace"
sketch11.AttachmentOffset = App.Placement(Vector(0, 0, -15), App.Rotation())
sketch11.addGeometry(Part.LineSegment(Vector(3, 2.4, 0), Vector(3, -2.6, 0)), False)
sketch11.addGeometry(Part.LineSegment(Vector(3, -2.6, 0), Vector(0, -2.6, 0)), False)
sketch11.addGeometry(Part.LineSegment(Vector(0, -2.6, 0), Vector(0, 2.4, 0)), False)
sketch11.addGeometry(Part.LineSegment(Vector(0, 2.4, 0), Vector(3, 2.4, 0)), False)
sketch11.addConstraint(Sketcher.Constraint("Coincident", 0, 2, 1, 1))
sketch11.addConstraint(Sketcher.Constraint("Coincident", 1, 2, 2, 1))
sketch11.addConstraint(Sketcher.Constraint("Coincident", 2, 2, 3, 1))
sketch11.addConstraint(Sketcher.Constraint("Coincident", 3, 2, 0, 1))
sketch11.addConstraint(Sketcher.Constraint("Vertical", 0))
sketch11.addConstraint(Sketcher.Constraint("Horizontal", 1))
sketch11.addConstraint(Sketcher.Constraint("Vertical", 2))
sketch11.addConstraint(Sketcher.Constraint("Horizontal", 3))
sketch11.addConstraint(Sketcher.Constraint("PointOnObject", 1, 2, -2))
sketch11.addConstraint(Sketcher.Constraint("DistanceX", 1, 2, 1, 1, Q("3 mm")))
sketch11.addConstraint(Sketcher.Constraint("DistanceY", 0, 2, 0, 1, Q("5 mm")))
sketch11.addConstraint(Sketcher.Constraint("DistanceY", 0, 2, -1, 1, Q("2.6 mm")))
sketch11.setExpression("Constraints[9]", "Params.sketch11_width")
sketch11.setExpression("Constraints[10]", "Params.sketch11_height")
pocket5 = body.newObject("PartDesign::Pocket", "Pocket004")
pocket5.Profile = sketch11
pocket5.setExpression("Length", "Params.pocket5_length")
pocket5.Reversed = True

# Sketch on XZ plane
sketch12 = body.newObject("Sketcher::SketchObject", "Sketch011")
sketch12.AttachmentSupport = (doc.getObject("XZ_Plane"), [""])
sketch12.MapMode = "FlatFace"
sketch12.AttachmentOffset = App.Placement(Vector(0, 0, -2.4), App.Rotation())
sketch12.addGeometry(Part.LineSegment(Vector(5, -10.5, 0), Vector(5, -4.5, 0)), False)
sketch12.addGeometry(Part.LineSegment(Vector(5, -4.5, 0), Vector(8, -4.5, 0)), False)
sketch12.addGeometry(Part.LineSegment(Vector(8, -4.5, 0), Vector(8, -10.5, 0)), False)
sketch12.addGeometry(Part.LineSegment(Vector(8, -10.5, 0), Vector(5, -10.5, 0)), False)
sketch12.addConstraint(Sketcher.Constraint("Coincident", 0, 2, 1, 1))
sketch12.addConstraint(Sketcher.Constraint("Coincident", 1, 2, 2, 1))
sketch12.addConstraint(Sketcher.Constraint("Coincident", 2, 2, 3, 1))
sketch12.addConstraint(Sketcher.Constraint("Coincident", 3, 2, 0, 1))
sketch12.addConstraint(Sketcher.Constraint("Vertical", 0))
sketch12.addConstraint(Sketcher.Constraint("Horizontal", 1))
sketch12.addConstraint(Sketcher.Constraint("Vertical", 2))
sketch12.addConstraint(Sketcher.Constraint("Horizontal", 3))
sketch12.addConstraint(Sketcher.Constraint("DistanceX", 1, 1, 1, 2, Q("3 mm")))
sketch12.addConstraint(Sketcher.Constraint("DistanceY", 0, 1, 0, 2, Q("6 mm")))
sketch12.addConstraint(Sketcher.Constraint("DistanceX", -1, 1, 0, 2, Q("5 mm")))
sketch12.addConstraint(Sketcher.Constraint("DistanceY", 0, 2, -1, 1, Q("4.5 mm")))
sketch12.setExpression("Constraints[8]", "Params.sketch12_width")
sketch12.setExpression("Constraints[9]", "Params.sketch12_height")
pocket6 = body.newObject("PartDesign::Pocket", "Pocket005")
pocket6.Profile = sketch12
pocket6.setExpression("Length", "Params.pocket6_length")
pocket6.Reversed = True

doc.recompute()
